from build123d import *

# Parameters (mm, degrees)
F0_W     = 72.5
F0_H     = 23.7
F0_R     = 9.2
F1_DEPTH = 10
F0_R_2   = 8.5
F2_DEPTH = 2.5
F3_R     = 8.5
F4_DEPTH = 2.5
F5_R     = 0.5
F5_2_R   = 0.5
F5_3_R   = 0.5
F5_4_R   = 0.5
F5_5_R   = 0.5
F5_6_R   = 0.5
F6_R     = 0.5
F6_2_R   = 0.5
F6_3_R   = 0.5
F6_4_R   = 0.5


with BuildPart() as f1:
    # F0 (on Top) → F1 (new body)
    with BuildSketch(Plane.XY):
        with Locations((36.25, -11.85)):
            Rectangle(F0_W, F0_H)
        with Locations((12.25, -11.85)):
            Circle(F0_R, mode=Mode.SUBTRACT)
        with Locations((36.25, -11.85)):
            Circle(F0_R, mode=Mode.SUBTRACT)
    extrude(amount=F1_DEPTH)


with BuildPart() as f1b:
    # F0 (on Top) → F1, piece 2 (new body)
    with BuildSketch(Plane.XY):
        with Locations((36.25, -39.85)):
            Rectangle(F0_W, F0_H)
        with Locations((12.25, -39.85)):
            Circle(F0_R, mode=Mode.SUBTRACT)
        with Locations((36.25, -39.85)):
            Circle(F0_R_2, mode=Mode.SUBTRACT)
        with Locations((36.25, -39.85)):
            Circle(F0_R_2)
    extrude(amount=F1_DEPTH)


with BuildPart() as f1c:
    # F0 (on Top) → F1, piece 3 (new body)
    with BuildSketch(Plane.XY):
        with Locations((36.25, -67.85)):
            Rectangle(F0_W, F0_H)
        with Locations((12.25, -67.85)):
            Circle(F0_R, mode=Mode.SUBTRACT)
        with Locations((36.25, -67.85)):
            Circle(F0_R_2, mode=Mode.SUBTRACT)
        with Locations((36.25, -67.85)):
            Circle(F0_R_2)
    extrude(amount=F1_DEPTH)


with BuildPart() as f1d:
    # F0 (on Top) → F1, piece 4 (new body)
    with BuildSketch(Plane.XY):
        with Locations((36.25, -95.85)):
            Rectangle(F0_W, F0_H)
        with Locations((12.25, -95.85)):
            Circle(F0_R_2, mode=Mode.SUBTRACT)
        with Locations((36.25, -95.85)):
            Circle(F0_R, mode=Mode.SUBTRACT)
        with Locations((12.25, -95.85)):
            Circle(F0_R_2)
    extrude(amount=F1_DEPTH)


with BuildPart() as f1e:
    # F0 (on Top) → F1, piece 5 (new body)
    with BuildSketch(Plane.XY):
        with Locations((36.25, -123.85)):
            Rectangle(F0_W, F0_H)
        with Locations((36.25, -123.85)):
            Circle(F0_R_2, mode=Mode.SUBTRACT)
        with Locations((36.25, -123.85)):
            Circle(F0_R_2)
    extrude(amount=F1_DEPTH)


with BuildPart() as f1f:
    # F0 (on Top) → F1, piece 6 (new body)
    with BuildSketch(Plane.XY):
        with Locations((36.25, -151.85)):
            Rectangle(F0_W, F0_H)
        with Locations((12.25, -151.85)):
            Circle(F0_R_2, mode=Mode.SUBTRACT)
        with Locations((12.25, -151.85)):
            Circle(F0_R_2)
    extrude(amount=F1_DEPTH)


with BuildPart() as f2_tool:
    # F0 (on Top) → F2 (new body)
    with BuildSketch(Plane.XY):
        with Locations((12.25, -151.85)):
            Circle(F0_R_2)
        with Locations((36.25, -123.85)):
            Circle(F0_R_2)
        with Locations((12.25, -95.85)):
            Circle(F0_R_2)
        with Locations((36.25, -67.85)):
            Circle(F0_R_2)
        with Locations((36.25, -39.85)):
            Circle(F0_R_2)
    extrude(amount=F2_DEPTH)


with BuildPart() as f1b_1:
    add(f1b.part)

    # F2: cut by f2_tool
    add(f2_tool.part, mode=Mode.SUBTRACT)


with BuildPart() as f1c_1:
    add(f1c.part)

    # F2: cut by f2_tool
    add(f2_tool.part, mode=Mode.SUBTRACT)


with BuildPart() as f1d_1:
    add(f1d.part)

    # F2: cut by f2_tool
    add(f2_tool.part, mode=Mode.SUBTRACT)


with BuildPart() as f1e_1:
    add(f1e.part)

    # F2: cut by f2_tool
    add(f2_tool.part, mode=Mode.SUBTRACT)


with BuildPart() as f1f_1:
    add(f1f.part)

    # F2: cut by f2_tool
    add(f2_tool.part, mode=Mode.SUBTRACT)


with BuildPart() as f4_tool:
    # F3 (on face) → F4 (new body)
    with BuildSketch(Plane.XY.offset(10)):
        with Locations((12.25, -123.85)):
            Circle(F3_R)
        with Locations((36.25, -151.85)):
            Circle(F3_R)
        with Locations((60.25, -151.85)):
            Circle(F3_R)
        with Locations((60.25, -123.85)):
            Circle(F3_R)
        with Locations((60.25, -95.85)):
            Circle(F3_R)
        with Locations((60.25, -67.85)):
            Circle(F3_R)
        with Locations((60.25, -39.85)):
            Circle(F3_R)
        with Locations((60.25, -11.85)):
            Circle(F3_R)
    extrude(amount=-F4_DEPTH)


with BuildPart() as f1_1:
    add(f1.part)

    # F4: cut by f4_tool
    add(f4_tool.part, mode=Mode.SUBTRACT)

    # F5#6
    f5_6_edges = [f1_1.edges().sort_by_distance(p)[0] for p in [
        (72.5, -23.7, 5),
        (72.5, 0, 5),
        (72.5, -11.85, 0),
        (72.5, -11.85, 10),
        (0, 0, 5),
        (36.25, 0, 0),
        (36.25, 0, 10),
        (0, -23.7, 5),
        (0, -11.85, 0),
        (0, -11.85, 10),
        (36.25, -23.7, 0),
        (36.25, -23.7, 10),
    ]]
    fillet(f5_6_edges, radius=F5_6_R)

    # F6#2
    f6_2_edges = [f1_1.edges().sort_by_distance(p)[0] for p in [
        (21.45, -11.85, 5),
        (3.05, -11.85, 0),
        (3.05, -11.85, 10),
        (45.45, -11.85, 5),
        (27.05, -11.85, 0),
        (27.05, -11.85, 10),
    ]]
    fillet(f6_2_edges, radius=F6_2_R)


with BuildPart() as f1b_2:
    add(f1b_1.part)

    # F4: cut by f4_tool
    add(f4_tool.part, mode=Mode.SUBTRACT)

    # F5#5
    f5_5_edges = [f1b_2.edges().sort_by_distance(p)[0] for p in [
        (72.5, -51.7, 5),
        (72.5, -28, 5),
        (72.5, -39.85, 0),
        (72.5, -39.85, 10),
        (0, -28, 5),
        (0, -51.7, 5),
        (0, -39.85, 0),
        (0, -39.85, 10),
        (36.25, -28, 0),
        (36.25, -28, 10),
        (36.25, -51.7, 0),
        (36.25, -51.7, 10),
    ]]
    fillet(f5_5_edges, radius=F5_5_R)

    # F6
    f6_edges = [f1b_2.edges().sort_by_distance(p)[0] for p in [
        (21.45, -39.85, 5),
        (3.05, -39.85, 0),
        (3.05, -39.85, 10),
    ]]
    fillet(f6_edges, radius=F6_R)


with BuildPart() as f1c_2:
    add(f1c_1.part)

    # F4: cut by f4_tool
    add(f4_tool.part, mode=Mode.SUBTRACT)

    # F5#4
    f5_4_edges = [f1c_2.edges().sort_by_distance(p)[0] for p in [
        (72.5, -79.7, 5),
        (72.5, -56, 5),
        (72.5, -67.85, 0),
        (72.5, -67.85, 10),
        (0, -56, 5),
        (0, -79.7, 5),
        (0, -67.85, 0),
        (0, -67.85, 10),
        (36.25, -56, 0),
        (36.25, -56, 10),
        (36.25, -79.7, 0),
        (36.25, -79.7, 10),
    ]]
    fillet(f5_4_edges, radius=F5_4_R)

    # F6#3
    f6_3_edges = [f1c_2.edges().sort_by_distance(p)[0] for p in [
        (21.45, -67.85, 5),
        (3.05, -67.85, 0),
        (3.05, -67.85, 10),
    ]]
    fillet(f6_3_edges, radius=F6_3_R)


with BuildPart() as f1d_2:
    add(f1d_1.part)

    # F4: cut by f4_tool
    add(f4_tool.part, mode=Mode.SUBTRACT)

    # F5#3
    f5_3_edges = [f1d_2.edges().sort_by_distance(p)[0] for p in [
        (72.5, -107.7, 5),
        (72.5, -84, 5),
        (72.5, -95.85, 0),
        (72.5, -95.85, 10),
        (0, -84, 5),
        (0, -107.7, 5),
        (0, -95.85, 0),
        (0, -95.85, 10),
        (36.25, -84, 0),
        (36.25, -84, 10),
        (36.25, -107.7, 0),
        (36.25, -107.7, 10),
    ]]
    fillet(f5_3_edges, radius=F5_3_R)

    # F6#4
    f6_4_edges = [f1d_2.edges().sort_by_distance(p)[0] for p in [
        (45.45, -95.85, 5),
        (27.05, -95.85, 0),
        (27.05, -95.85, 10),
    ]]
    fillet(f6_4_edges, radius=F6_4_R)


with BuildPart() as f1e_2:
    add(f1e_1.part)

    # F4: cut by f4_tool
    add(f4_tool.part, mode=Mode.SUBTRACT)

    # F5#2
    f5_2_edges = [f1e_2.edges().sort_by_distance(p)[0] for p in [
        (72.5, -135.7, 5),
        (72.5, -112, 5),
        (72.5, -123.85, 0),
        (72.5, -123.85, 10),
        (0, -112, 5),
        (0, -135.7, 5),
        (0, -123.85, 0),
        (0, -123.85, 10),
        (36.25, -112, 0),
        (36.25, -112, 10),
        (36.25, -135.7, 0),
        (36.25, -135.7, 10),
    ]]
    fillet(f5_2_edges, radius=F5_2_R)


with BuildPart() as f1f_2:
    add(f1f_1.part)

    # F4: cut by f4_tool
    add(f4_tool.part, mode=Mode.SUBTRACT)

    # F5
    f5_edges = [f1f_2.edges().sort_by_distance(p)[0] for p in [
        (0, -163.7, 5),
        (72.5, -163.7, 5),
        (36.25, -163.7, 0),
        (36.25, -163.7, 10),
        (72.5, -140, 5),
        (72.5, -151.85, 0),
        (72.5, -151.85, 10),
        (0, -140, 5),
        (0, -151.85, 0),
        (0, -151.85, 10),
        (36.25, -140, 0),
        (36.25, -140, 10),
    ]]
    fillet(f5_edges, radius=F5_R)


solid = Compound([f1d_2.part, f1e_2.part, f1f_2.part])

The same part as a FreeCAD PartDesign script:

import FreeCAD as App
import Part
import Sketcher
Q = App.Units.Quantity


def edges_at(feature, points):
    """Names of the edges that pass closest to the given points."""
    edges = feature.Shape.Edges
    near = lambda p: min(range(len(edges)), key=lambda i: edges[i].distToShape(Part.Vertex(*p))[0])
    return sorted({f"Edge{near(p) + 1}" for p in points})


def add_polygon(sketch, points):
    """Adds a closed chain of lines whose ends are joined by coincident constraints."""
    first, n = sketch.GeometryCount, len(points)
    for a, b in zip(points, points[1:] + points[:1]):
        sketch.addGeometry(Part.LineSegment(App.Vector(*a, 0), App.Vector(*b, 0)), False)
    for i in range(n):
        sketch.addConstraint(Sketcher.Constraint("Coincident", first + i, 2, first + (i + 1) % n, 1))

doc = App.newDocument("Part")
params = doc.addObject("Spreadsheet::Sheet", "Params")
for row, (alias, value) in enumerate([
    ("sketch1_diameter", "18.4 mm"),
    ("sketch1_width", "72.5 mm"),
    ("sketch1_height", "23.7 mm"),
    ("pad1_length", "10 mm"),
    ("sketch2_diameter", "18.4 mm"),
    ("sketch2_width", "72.5 mm"),
    ("sketch2_height", "23.7 mm"),
    ("pad2_length", "10 mm"),
    ("sketch3_diameter", "18.4 mm"),
    ("sketch3_width", "72.5 mm"),
    ("sketch3_height", "23.7 mm"),
    ("pad3_length", "10 mm"),
    ("sketch4_diameter", "18.4 mm"),
    ("sketch4_width", "72.5 mm"),
    ("sketch4_height", "23.7 mm"),
    ("pad4_length", "10 mm"),
    ("sketch5_width", "72.5 mm"),
    ("sketch5_height", "23.7 mm"),
    ("pad5_length", "10 mm"),
    ("sketch6_width", "72.5 mm"),
    ("sketch6_height", "23.7 mm"),
    ("pad6_length", "10 mm"),
    ("sketch7_diameter", "17 mm"),
    ("pad7_length", "2.5 mm"),
    ("sketch8_diameter", "17 mm"),
    ("pad8_length", "2.5 mm"),
    ("fillet_radius", "0.5 mm"),
    ("fillet2_radius", "0.5 mm"),
    ("fillet3_radius", "0.5 mm"),
    ("fillet4_radius", "0.5 mm"),
    ("fillet5_radius", "0.5 mm"),
    ("fillet6_radius", "0.5 mm"),
    ("fillet7_radius", "0.5 mm"),
    ("fillet8_radius", "0.5 mm"),
    ("fillet9_radius", "0.5 mm"),
    ("fillet10_radius", "0.5 mm"),
], start=1):
    params.set(f"A{row}", alias)
    params.set(f"B{row}", "=" + value)
    params.setAlias(f"B{row}", alias)

body = doc.addObject("PartDesign::Body", "Body")

# Sketch on XY plane
sketch1 = body.newObject("Sketcher::SketchObject", "Sketch")
sketch1.AttachmentSupport = (doc.getObject("XY_Plane"), [""])
sketch1.MapMode = "FlatFace"
add_polygon(sketch1, [(0, 0), (0, -24), (72, -24), (72, 0)])  # lines 0-3
sketch1.addGeometry(Part.Circle(App.Vector(12, -12, 0), App.Vector(0, 0, 1), 9), False)  # 4
sketch1.addGeometry(Part.Circle(App.Vector(36, -12, 0), App.Vector(0, 0, 1), 9), False)  # 5
sketch1.addConstraint([
    Sketcher.Constraint("Vertical", 0),
    Sketcher.Constraint("Horizontal", 1),
    Sketcher.Constraint("Vertical", 2),
    Sketcher.Constraint("Horizontal", 3),
    Sketcher.Constraint("Coincident", 3, 2, -1, 1),
    Sketcher.Constraint("Equal", 4, 5),
    Sketcher.Constraint("Horizontal", 4, 3, 5, 3),
    Sketcher.Constraint("Diameter", 4, Q("18.4 mm")),
    Sketcher.Constraint("DistanceX", 1, 1, 1, 2, Q("72.5 mm")),
    Sketcher.Constraint("DistanceY", 0, 2, 0, 1, Q("23.7 mm")),
    Sketcher.Constraint("DistanceX", 4, 3, 5, 3, Q("24 mm")),
    Sketcher.Constraint("DistanceX", -1, 1, 4, 3, Q("12.25 mm")),
    Sketcher.Constraint("DistanceY", 4, 3, -1, 1, Q("11.85 mm")),
])
sketch1.setExpression("Constraints[11]", "Params.sketch1_diameter")
sketch1.setExpression("Constraints[12]", "Params.sketch1_width")
sketch1.setExpression("Constraints[13]", "Params.sketch1_height")
pad1 = body.newObject("PartDesign::Pad", "Pad")
pad1.Profile = sketch1
pad1.setExpression("Length", "Params.pad1_length")
body2 = doc.addObject("PartDesign::Body", "Body001")

# Sketch on XY plane
sketch2 = body2.newObject("Sketcher::SketchObject", "Sketch001")
sketch2.AttachmentSupport = (doc.getObject("XY_Plane001"), [""])
sketch2.MapMode = "FlatFace"
add_polygon(sketch2, [(0, -28), (0, -52), (72, -52), (72, -28)])  # lines 0-3
sketch2.addGeometry(Part.Circle(App.Vector(12, -40, 0), App.Vector(0, 0, 1), 9), False)  # 4
sketch2.addConstraint([
    Sketcher.Constraint("Vertical", 0),
    Sketcher.Constraint("Horizontal", 1),
    Sketcher.Constraint("Vertical", 2),
    Sketcher.Constraint("Horizontal", 3),
    Sketcher.Constraint("PointOnObject", 0, 2, -2),
    Sketcher.Constraint("Diameter", 4, Q("18.4 mm")),
    Sketcher.Constraint("DistanceX", 1, 1, 1, 2, Q("72.5 mm")),
    Sketcher.Constraint("DistanceY", 0, 2, 0, 1, Q("23.7 mm")),
    Sketcher.Constraint("DistanceY", 2, 2, -1, 1, Q("28 mm")),
    Sketcher.Constraint("DistanceX", -1, 1, 4, 3, Q("12.25 mm")),
    Sketcher.Constraint("DistanceY", 4, 3, -1, 1, Q("39.85 mm")),
])
sketch2.setExpression("Constraints[9]", "Params.sketch2_diameter")
sketch2.setExpression("Constraints[10]", "Params.sketch2_width")
sketch2.setExpression("Constraints[11]", "Params.sketch2_height")
pad2 = body2.newObject("PartDesign::Pad", "Pad001")
pad2.Profile = sketch2
pad2.setExpression("Length", "Params.pad2_length")
body3 = doc.addObject("PartDesign::Body", "Body002")

# Sketch on XY plane
sketch3 = body3.newObject("Sketcher::SketchObject", "Sketch002")
sketch3.AttachmentSupport = (doc.getObject("XY_Plane002"), [""])
sketch3.MapMode = "FlatFace"
add_polygon(sketch3, [(0, -56), (0, -80), (72, -80), (72, -56)])  # lines 0-3
sketch3.addGeometry(Part.Circle(App.Vector(12, -68, 0), App.Vector(0, 0, 1), 9), False)  # 4
sketch3.addConstraint([
    Sketcher.Constraint("Vertical", 0),
    Sketcher.Constraint("Horizontal", 1),
    Sketcher.Constraint("Vertical", 2),
    Sketcher.Constraint("Horizontal", 3),
    Sketcher.Constraint("PointOnObject", 0, 2, -2),
    Sketcher.Constraint("Diameter", 4, Q("18.4 mm")),
    Sketcher.Constraint("DistanceX", 1, 1, 1, 2, Q("72.5 mm")),
    Sketcher.Constraint("DistanceY", 0, 2, 0, 1, Q("23.7 mm")),
    Sketcher.Constraint("DistanceY", 2, 2, -1, 1, Q("56 mm")),
    Sketcher.Constraint("DistanceX", -1, 1, 4, 3, Q("12.25 mm")),
    Sketcher.Constraint("DistanceY", 4, 3, -1, 1, Q("67.85 mm")),
])
sketch3.setExpression("Constraints[9]", "Params.sketch3_diameter")
sketch3.setExpression("Constraints[10]", "Params.sketch3_width")
sketch3.setExpression("Constraints[11]", "Params.sketch3_height")
pad3 = body3.newObject("PartDesign::Pad", "Pad002")
pad3.Profile = sketch3
pad3.setExpression("Length", "Params.pad3_length")
body4 = doc.addObject("PartDesign::Body", "Body003")

# Sketch on XY plane
sketch4 = body4.newObject("Sketcher::SketchObject", "Sketch003")
sketch4.AttachmentSupport = (doc.getObject("XY_Plane003"), [""])
sketch4.MapMode = "FlatFace"
add_polygon(sketch4, [(0, -84), (0, -108), (72, -108), (72, -84)])  # lines 0-3
sketch4.addGeometry(Part.Circle(App.Vector(36, -96, 0), App.Vector(0, 0, 1), 9), False)  # 4
sketch4.addConstraint([
    Sketcher.Constraint("Vertical", 0),
    Sketcher.Constraint("Horizontal", 1),
    Sketcher.Constraint("Vertical", 2),
    Sketcher.Constraint("Horizontal", 3),
    Sketcher.Constraint("PointOnObject", 0, 2, -2),
    Sketcher.Constraint("Diameter", 4, Q("18.4 mm")),
    Sketcher.Constraint("DistanceX", 1, 1, 1, 2, Q("72.5 mm")),
    Sketcher.Constraint("DistanceY", 0, 2, 0, 1, Q("23.7 mm")),
    Sketcher.Constraint("DistanceY", 2, 2, -1, 1, Q("84 mm")),
    Sketcher.Constraint("DistanceX", -1, 1, 4, 3, Q("36.25 mm")),
    Sketcher.Constraint("DistanceY", 4, 3, -1, 1, Q("95.85 mm")),
])
sketch4.setExpression("Constraints[9]", "Params.sketch4_diameter")
sketch4.setExpression("Constraints[10]", "Params.sketch4_width")
sketch4.setExpression("Constraints[11]", "Params.sketch4_height")
pad4 = body4.newObject("PartDesign::Pad", "Pad003")
pad4.Profile = sketch4
pad4.setExpression("Length", "Params.pad4_length")
body5 = doc.addObject("PartDesign::Body", "Body004")

# Sketch on XY plane
sketch5 = body5.newObject("Sketcher::SketchObject", "Sketch004")
sketch5.AttachmentSupport = (doc.getObject("XY_Plane004"), [""])
sketch5.MapMode = "FlatFace"
add_polygon(sketch5, [(0, -112), (0, -136), (72, -136), (72, -112)])  # lines 0-3
sketch5.addConstraint([
    Sketcher.Constraint("Vertical", 0),
    Sketcher.Constraint("Horizontal", 1),
    Sketcher.Constraint("Vertical", 2),
    Sketcher.Constraint("Horizontal", 3),
    Sketcher.Constraint("PointOnObject", 0, 2, -2),
    Sketcher.Constraint("DistanceX", 1, 1, 1, 2, Q("72.5 mm")),
    Sketcher.Constraint("DistanceY", 0, 2, 0, 1, Q("23.7 mm")),
    Sketcher.Constraint("DistanceY", 2, 2, -1, 1, Q("112 mm")),
])
sketch5.setExpression("Constraints[9]", "Params.sketch5_width")
sketch5.setExpression("Constraints[10]", "Params.sketch5_height")
pad5 = body5.newObject("PartDesign::Pad", "Pad004")
pad5.Profile = sketch5
pad5.setExpression("Length", "Params.pad5_length")
body6 = doc.addObject("PartDesign::Body", "Body005")

# Sketch on XY plane
sketch6 = body6.newObject("Sketcher::SketchObject", "Sketch005")
sketch6.AttachmentSupport = (doc.getObject("XY_Plane005"), [""])
sketch6.MapMode = "FlatFace"
add_polygon(sketch6, [(0, -140), (0, -164), (72, -164), (72, -140)])  # lines 0-3
sketch6.addConstraint([
    Sketcher.Constraint("Vertical", 0),
    Sketcher.Constraint("Horizontal", 1),
    Sketcher.Constraint("Vertical", 2),
    Sketcher.Constraint("Horizontal", 3),
    Sketcher.Constraint("PointOnObject", 0, 2, -2),
    Sketcher.Constraint("DistanceX", 1, 1, 1, 2, Q("72.5 mm")),
    Sketcher.Constraint("DistanceY", 0, 2, 0, 1, Q("23.7 mm")),
    Sketcher.Constraint("DistanceY", 2, 2, -1, 1, Q("140 mm")),
])
sketch6.setExpression("Constraints[9]", "Params.sketch6_width")
sketch6.setExpression("Constraints[10]", "Params.sketch6_height")
pad6 = body6.newObject("PartDesign::Pad", "Pad005")
pad6.Profile = sketch6
pad6.setExpression("Length", "Params.pad6_length")
body7 = doc.addObject("PartDesign::Body", "Body006")
body7.AllowCompound = True

# Sketch on XY plane
sketch7 = body7.newObject("Sketcher::SketchObject", "Sketch006")
sketch7.AttachmentSupport = (doc.getObject("XY_Plane006"), [""])
sketch7.MapMode = "FlatFace"
sketch7.addGeometry([
    Part.Circle(App.Vector(12, -152, 0), App.Vector(0, 0, 1), 8),  # 0
    Part.Circle(App.Vector(36, -124, 0), App.Vector(0, 0, 1), 8),  # 1
    Part.Circle(App.Vector(12, -96, 0), App.Vector(0, 0, 1), 8),  # 2
    Part.Circle(App.Vector(36, -68, 0), App.Vector(0, 0, 1), 8),  # 3
    Part.Circle(App.Vector(36, -40, 0), App.Vector(0, 0, 1), 8),  # 4
], False)
sketch7.addConstraint([
    Sketcher.Constraint("Equal", 0, 1),
    Sketcher.Constraint("Equal", 1, 2),
    Sketcher.Constraint("Equal", 2, 3),
    Sketcher.Constraint("Equal", 3, 4),
    Sketcher.Constraint("Vertical", 0, 3, 2, 3),
    Sketcher.Constraint("Vertical", 1, 3, 3, 3),
    Sketcher.Constraint("Vertical", 3, 3, 4, 3),
    Sketcher.Constraint("Diameter", 0, Q("17 mm")),
    Sketcher.Constraint("DistanceX", 0, 3, 1, 3, Q("24 mm")),
    Sketcher.Constraint("DistanceY", 0, 3, 1, 3, Q("28 mm")),
    Sketcher.Constraint("DistanceY", 1, 3, 2, 3, Q("28 mm")),
    Sketcher.Constraint("DistanceY", 2, 3, 3, 3, Q("28 mm")),
    Sketcher.Constraint("DistanceY", 3, 3, 4, 3, Q("28 mm")),
    Sketcher.Constraint("DistanceX", -1, 1, 0, 3, Q("12.25 mm")),
    Sketcher.Constraint("DistanceY", 0, 3, -1, 1, Q("151.85 mm")),
])
sketch7.setExpression("Constraints[7]", "Params.sketch7_diameter")
pad7 = body7.newObject("PartDesign::Pad", "Pad006")
pad7.Profile = sketch7
pad7.setExpression("Length", "Params.pad7_length")
doc.recompute()

body8 = doc.addObject("PartDesign::Body", "Body007")
body8.BaseFeature = body7
boolean = body2.newObject("PartDesign::Boolean", "Boolean")
boolean.Type = "Cut"
boolean.addObjects([body8])
doc.recompute()

body9 = doc.addObject("PartDesign::Body", "Body008")
body9.BaseFeature = body7
boolean2 = body3.newObject("PartDesign::Boolean", "Boolean001")
boolean2.Type = "Cut"
boolean2.addObjects([body9])
doc.recompute()

body10 = doc.addObject("PartDesign::Body", "Body009")
body10.BaseFeature = body7
boolean3 = body4.newObject("PartDesign::Boolean", "Boolean002")
boolean3.Type = "Cut"
boolean3.addObjects([body10])
doc.recompute()

body11 = doc.addObject("PartDesign::Body", "Body010")
body11.BaseFeature = body7
boolean4 = body5.newObject("PartDesign::Boolean", "Boolean003")
boolean4.Type = "Cut"
boolean4.addObjects([body11])
doc.recompute()

boolean5 = body6.newObject("PartDesign::Boolean", "Boolean004")
boolean5.Type = "Cut"
boolean5.addObjects([body7])
body12 = doc.addObject("PartDesign::Body", "Body011")
body12.AllowCompound = True

# Sketch on XY plane
sketch8 = body12.newObject("Sketcher::SketchObject", "Sketch007")
sketch8.AttachmentSupport = (doc.getObject("XY_Plane011"), [""])
sketch8.MapMode = "FlatFace"
sketch8.AttachmentOffset = App.Placement(App.Vector(0, 0, 10), App.Rotation())
sketch8.addGeometry([
    Part.Circle(App.Vector(12, -124, 0), App.Vector(0, 0, 1), 8),  # 0
    Part.Circle(App.Vector(36, -152, 0), App.Vector(0, 0, 1), 8),  # 1
    Part.Circle(App.Vector(60, -152, 0), App.Vector(0, 0, 1), 8),  # 2
    Part.Circle(App.Vector(60, -124, 0), App.Vector(0, 0, 1), 8),  # 3
    Part.Circle(App.Vector(60, -96, 0), App.Vector(0, 0, 1), 8),  # 4
    Part.Circle(App.Vector(60, -68, 0), App.Vector(0, 0, 1), 8),  # 5
    Part.Circle(App.Vector(60, -40, 0), App.Vector(0, 0, 1), 8),  # 6
    Part.Circle(App.Vector(60, -12, 0), App.Vector(0, 0, 1), 8),  # 7
], False)
sketch8.addConstraint([
    Sketcher.Constraint("Equal", 0, 1),
    Sketcher.Constraint("Equal", 1, 2),
    Sketcher.Constraint("Equal", 2, 3),
    Sketcher.Constraint("Equal", 3, 4),
    Sketcher.Constraint("Equal", 4, 5),
    Sketcher.Constraint("Equal", 5, 6),
    Sketcher.Constraint("Equal", 6, 7),
    Sketcher.Constraint("Horizontal", 1, 3, 2, 3),
    Sketcher.Constraint("Horizontal", 0, 3, 3, 3),
    Sketcher.Constraint("Vertical", 2, 3, 3, 3),
    Sketcher.Constraint("Vertical", 3, 3, 4, 3),
    Sketcher.Constraint("Vertical", 4, 3, 5, 3),
    Sketcher.Constraint("Vertical", 5, 3, 6, 3),
    Sketcher.Constraint("Vertical", 6, 3, 7, 3),
    Sketcher.Constraint("Diameter", 0, Q("17 mm")),
    Sketcher.Constraint("DistanceX", 0, 3, 1, 3, Q("24 mm")),
    Sketcher.Constraint("DistanceY", 1, 3, 0, 3, Q("28 mm")),
    Sketcher.Constraint("DistanceX", 1, 3, 2, 3, Q("24 mm")),
    Sketcher.Constraint("DistanceY", 3, 3, 4, 3, Q("28 mm")),
    Sketcher.Constraint("DistanceY", 4, 3, 5, 3, Q("28 mm")),
    Sketcher.Constraint("DistanceY", 5, 3, 6, 3, Q("28 mm")),
    Sketcher.Constraint("DistanceY", 6, 3, 7, 3, Q("28 mm")),
    Sketcher.Constraint("DistanceX", -1, 1, 0, 3, Q("12.25 mm")),
    Sketcher.Constraint("DistanceY", 0, 3, -1, 1, Q("123.85 mm")),
])
sketch8.setExpression("Constraints[14]", "Params.sketch8_diameter")
pad8 = body12.newObject("PartDesign::Pad", "Pad007")
pad8.Profile = sketch8
pad8.setExpression("Length", "Params.pad8_length")
pad8.Reversed = True
doc.recompute()

body13 = doc.addObject("PartDesign::Body", "Body012")
body13.BaseFeature = body12
boolean6 = body.newObject("PartDesign::Boolean", "Boolean005")
boolean6.Type = "Cut"
boolean6.addObjects([body13])
doc.recompute()

fillet = body.newObject("PartDesign::Fillet", "Fillet")
fillet.Base = (boolean6, edges_at(boolean6, [
    (72.5, -23.7, 5),
    (72.5, 0, 5),
    (72.5, -11.85, 0),
    (72.5, -11.85, 10),
    (0, 0, 5),
    (36.25, 0, 0),
    (36.25, 0, 10),
    (0, -23.7, 5),
    (0, -11.85, 0),
    (0, -11.85, 10),
    (36.25, -23.7, 0),
    (36.25, -23.7, 10),
]))
fillet.setExpression("Radius", "Params.fillet_radius")
doc.recompute()

fillet2 = body.newObject("PartDesign::Fillet", "Fillet001")
fillet2.Base = (fillet, edges_at(fillet, [
    (21.45, -11.85, 5),
    (3.05, -11.85, 0),
    (3.05, -11.85, 10),
    (45.45, -11.85, 5),
    (27.05, -11.85, 0),
    (27.05, -11.85, 10),
]))
fillet2.setExpression("Radius", "Params.fillet2_radius")
doc.recompute()

body14 = doc.addObject("PartDesign::Body", "Body013")
body14.BaseFeature = body12
boolean7 = body2.newObject("PartDesign::Boolean", "Boolean006")
boolean7.Type = "Cut"
boolean7.addObjects([body14])
doc.recompute()

fillet3 = body2.newObject("PartDesign::Fillet", "Fillet002")
fillet3.Base = (boolean7, edges_at(boolean7, [
    (72.5, -51.7, 5),
    (72.5, -28, 5),
    (72.5, -39.85, 0),
    (72.5, -39.85, 10),
    (0, -28, 5),
    (0, -51.7, 5),
    (0, -39.85, 0),
    (0, -39.85, 10),
    (36.25, -28, 0),
    (36.25, -28, 10),
    (36.25, -51.7, 0),
    (36.25, -51.7, 10),
]))
fillet3.setExpression("Radius", "Params.fillet3_radius")
doc.recompute()

fillet4 = body2.newObject("PartDesign::Fillet", "Fillet003")
fillet4.Base = (fillet3, edges_at(fillet3, [(21.45, -39.85, 5), (3.05, -39.85, 0), (3.05, -39.85, 10)]))
fillet4.setExpression("Radius", "Params.fillet4_radius")
doc.recompute()

body15 = doc.addObject("PartDesign::Body", "Body014")
body15.BaseFeature = body12
boolean8 = body3.newObject("PartDesign::Boolean", "Boolean007")
boolean8.Type = "Cut"
boolean8.addObjects([body15])
doc.recompute()

fillet5 = body3.newObject("PartDesign::Fillet", "Fillet004")
fillet5.Base = (boolean8, edges_at(boolean8, [
    (72.5, -79.7, 5),
    (72.5, -56, 5),
    (72.5, -67.85, 0),
    (72.5, -67.85, 10),
    (0, -56, 5),
    (0, -79.7, 5),
    (0, -67.85, 0),
    (0, -67.85, 10),
    (36.25, -56, 0),
    (36.25, -56, 10),
    (36.25, -79.7, 0),
    (36.25, -79.7, 10),
]))
fillet5.setExpression("Radius", "Params.fillet5_radius")
doc.recompute()

fillet6 = body3.newObject("PartDesign::Fillet", "Fillet005")
fillet6.Base = (fillet5, edges_at(fillet5, [(21.45, -67.85, 5), (3.05, -67.85, 0), (3.05, -67.85, 10)]))
fillet6.setExpression("Radius", "Params.fillet6_radius")
doc.recompute()

body16 = doc.addObject("PartDesign::Body", "Body015")
body16.BaseFeature = body12
boolean9 = body4.newObject("PartDesign::Boolean", "Boolean008")
boolean9.Type = "Cut"
boolean9.addObjects([body16])
doc.recompute()

fillet7 = body4.newObject("PartDesign::Fillet", "Fillet006")
fillet7.Base = (boolean9, edges_at(boolean9, [
    (72.5, -107.7, 5),
    (72.5, -84, 5),
    (72.5, -95.85, 0),
    (72.5, -95.85, 10),
    (0, -84, 5),
    (0, -107.7, 5),
    (0, -95.85, 0),
    (0, -95.85, 10),
    (36.25, -84, 0),
    (36.25, -84, 10),
    (36.25, -107.7, 0),
    (36.25, -107.7, 10),
]))
fillet7.setExpression("Radius", "Params.fillet7_radius")
doc.recompute()

fillet8 = body4.newObject("PartDesign::Fillet", "Fillet007")
fillet8.Base = (fillet7, edges_at(fillet7, [(45.45, -95.85, 5), (27.05, -95.85, 0), (27.05, -95.85, 10)]))
fillet8.setExpression("Radius", "Params.fillet8_radius")
doc.recompute()

body17 = doc.addObject("PartDesign::Body", "Body016")
body17.BaseFeature = body12
boolean10 = body5.newObject("PartDesign::Boolean", "Boolean009")
boolean10.Type = "Cut"
boolean10.addObjects([body17])
doc.recompute()

fillet9 = body5.newObject("PartDesign::Fillet", "Fillet008")
fillet9.Base = (boolean10, edges_at(boolean10, [
    (72.5, -135.7, 5),
    (72.5, -112, 5),
    (72.5, -123.85, 0),
    (72.5, -123.85, 10),
    (0, -112, 5),
    (0, -135.7, 5),
    (0, -123.85, 0),
    (0, -123.85, 10),
    (36.25, -112, 0),
    (36.25, -112, 10),
    (36.25, -135.7, 0),
    (36.25, -135.7, 10),
]))
fillet9.setExpression("Radius", "Params.fillet9_radius")
doc.recompute()

boolean11 = body6.newObject("PartDesign::Boolean", "Boolean010")
boolean11.Type = "Cut"
boolean11.addObjects([body12])
doc.recompute()

fillet10 = body6.newObject("PartDesign::Fillet", "Fillet009")
fillet10.Base = (boolean11, edges_at(boolean11, [
    (0, -163.7, 5),
    (72.5, -163.7, 5),
    (36.25, -163.7, 0),
    (36.25, -163.7, 10),
    (72.5, -140, 5),
    (72.5, -151.85, 0),
    (72.5, -151.85, 10),
    (0, -140, 5),
    (0, -151.85, 0),
    (0, -151.85, 10),
    (36.25, -140, 0),
    (36.25, -140, 10),
]))
fillet10.setExpression("Radius", "Params.fillet10_radius")
body.Visibility = False
body2.Visibility = False
body3.Visibility = False

doc.recompute()
